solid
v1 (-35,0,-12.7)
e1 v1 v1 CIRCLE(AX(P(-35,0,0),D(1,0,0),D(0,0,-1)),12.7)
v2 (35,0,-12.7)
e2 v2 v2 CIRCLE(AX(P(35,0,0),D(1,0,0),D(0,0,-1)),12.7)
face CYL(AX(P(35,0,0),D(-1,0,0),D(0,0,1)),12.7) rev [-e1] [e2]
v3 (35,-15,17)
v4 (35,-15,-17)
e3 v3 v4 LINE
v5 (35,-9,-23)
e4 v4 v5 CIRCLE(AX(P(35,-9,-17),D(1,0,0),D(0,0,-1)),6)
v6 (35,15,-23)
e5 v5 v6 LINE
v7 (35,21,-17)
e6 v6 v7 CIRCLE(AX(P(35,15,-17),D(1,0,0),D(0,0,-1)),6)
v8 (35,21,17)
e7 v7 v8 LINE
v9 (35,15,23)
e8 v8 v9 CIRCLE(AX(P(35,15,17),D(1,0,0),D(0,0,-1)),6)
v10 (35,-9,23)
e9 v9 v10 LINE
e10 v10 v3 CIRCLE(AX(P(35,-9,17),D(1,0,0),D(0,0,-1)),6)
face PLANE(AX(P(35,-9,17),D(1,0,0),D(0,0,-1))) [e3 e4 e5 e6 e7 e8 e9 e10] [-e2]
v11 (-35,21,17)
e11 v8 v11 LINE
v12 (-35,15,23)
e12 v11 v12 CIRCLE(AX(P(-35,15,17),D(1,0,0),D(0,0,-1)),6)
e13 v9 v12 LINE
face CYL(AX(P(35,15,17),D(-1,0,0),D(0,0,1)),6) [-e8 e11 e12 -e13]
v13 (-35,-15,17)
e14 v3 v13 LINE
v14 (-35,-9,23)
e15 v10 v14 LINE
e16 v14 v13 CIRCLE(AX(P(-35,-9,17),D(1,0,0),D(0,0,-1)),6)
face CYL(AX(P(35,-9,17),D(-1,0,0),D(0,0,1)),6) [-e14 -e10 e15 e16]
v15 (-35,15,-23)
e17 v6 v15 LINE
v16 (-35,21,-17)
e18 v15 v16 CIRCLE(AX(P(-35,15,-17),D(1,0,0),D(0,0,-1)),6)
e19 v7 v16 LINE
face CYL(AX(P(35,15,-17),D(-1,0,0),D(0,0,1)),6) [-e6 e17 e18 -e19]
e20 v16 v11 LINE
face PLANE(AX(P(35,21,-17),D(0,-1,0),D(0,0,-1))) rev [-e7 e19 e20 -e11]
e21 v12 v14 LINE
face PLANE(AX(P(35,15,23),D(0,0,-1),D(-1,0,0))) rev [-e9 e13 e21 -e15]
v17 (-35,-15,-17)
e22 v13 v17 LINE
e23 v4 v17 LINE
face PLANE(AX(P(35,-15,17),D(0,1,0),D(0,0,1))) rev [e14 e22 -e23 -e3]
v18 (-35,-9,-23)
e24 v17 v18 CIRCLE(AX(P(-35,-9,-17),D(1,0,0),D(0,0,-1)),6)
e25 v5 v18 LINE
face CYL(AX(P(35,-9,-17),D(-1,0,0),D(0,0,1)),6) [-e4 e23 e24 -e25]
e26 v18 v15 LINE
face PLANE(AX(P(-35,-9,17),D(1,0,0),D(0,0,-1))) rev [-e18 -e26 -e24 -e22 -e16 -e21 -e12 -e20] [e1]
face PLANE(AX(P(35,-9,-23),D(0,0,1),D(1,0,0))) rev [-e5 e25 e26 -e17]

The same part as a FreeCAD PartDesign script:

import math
import FreeCAD as App
import Part
import Sketcher
from FreeCAD import Vector

doc = App.newDocument("Part")
body = doc.addObject("PartDesign::Body", "Body")

# Sketch on YZ plane
sketch1 = doc.addObject("Sketcher::SketchObject", "Sketch")
body.addObject(sketch1)
sketch1.AttachmentSupport = (doc.YZ_Plane, [""])
sketch1.MapMode = "FlatFace"
sketch1.addGeometry(Part.LineSegment(Vector(-15, 17, 0), Vector(-15, -17, 0)), False)
sketch1.addGeometry(Part.ArcOfCircle(Part.Circle(Vector(-9, -17, 0), Vector(0, 0, 1), 6), math.radians(180), math.radians(270)), False)
sketch1.addGeometry(Part.LineSegment(Vector(-9, -23, 0), Vector(15, -23, 0)), False)
sketch1.addGeometry(Part.ArcOfCircle(Part.Circle(Vector(15, -17, 0), Vector(0, 0, 1), 6), math.radians(-90), math.radians(0)), False)
sketch1.addGeometry(Part.LineSegment(Vector(21, -17, 0), Vector(21, 17, 0)), False)
sketch1.addGeometry(Part.ArcOfCircle(Part.Circle(Vector(15, 17, 0), Vector(0, 0, 1), 6), math.radians(0), math.radians(90)), False)
sketch1.addGeometry(Part.LineSegment(Vector(15, 23, 0), Vector(-9, 23, 0)), False)
sketch1.addGeometry(Part.ArcOfCircle(Part.Circle(Vector(-9, 17, 0), Vector(0, 0, 1), 6), math.radians(90), math.radians(180)), False)
sketch1.addGeometry(Part.Circle(Vector(0, 0, 0), Vector(0, 0, 1), 13), False)
sketch1.addConstraint(Sketcher.Constraint("Tangent", 0, 2, 1, 1))
sketch1.addConstraint(Sketcher.Constraint("Tangent", 1, 2, 2, 1))
sketch1.addConstraint(Sketcher.Constraint("Tangent", 2, 2, 3, 1))
sketch1.addConstraint(Sketcher.Constraint("Tangent", 3, 2, 4, 1))
sketch1.addConstraint(Sketcher.Constraint("Tangent", 4, 2, 5, 1))
sketch1.addConstraint(Sketcher.Constraint("Tangent", 5, 2, 6, 1))
sketch1.addConstraint(Sketcher.Constraint("Tangent", 6, 2, 7, 1))
sketch1.addConstraint(Sketcher.Constraint("Tangent", 7, 2, 0, 1))
sketch1.addConstraint(Sketcher.Constraint("Vertical", 0))
sketch1.addConstraint(Sketcher.Constraint("Horizontal", 2))
sketch1.addConstraint(Sketcher.Constraint("Vertical", 4))
sketch1.addConstraint(Sketcher.Constraint("Horizontal", 6))
sketch1.addConstraint(Sketcher.Constraint("Coincident", 8, 3, -1, 1))
sketch1.addConstraint(Sketcher.Constraint("Equal", 1, 3))
sketch1.addConstraint(Sketcher.Constraint("Equal", 3, 5))
sketch1.addConstraint(Sketcher.Constraint("Equal", 5, 7))
sketch1.addConstraint(Sketcher.Constraint("Radius", 1, 6.0))
sketch1.addConstraint(Sketcher.Constraint("Diameter", 8, 25.4))
sketch1.addConstraint(Sketcher.Constraint("DistanceX", 2, 1, 2, 2, 24.0))
sketch1.addConstraint(Sketcher.Constraint("DistanceY", 0, 2, 0, 1, 34.0))
sketch1.addConstraint(Sketcher.Constraint("DistanceX", 1, 3, -1, 1, 9.0))
sketch1.addConstraint(Sketcher.Constraint("DistanceY", 1, 3, -1, 1, 17.0))
pad1 = doc.addObject("PartDesign::Pad", "Pad")
body.addObject(pad1)
pad1.Profile = sketch1
pad1.Length = 70
pad1.Midplane = True

doc.recompute()
